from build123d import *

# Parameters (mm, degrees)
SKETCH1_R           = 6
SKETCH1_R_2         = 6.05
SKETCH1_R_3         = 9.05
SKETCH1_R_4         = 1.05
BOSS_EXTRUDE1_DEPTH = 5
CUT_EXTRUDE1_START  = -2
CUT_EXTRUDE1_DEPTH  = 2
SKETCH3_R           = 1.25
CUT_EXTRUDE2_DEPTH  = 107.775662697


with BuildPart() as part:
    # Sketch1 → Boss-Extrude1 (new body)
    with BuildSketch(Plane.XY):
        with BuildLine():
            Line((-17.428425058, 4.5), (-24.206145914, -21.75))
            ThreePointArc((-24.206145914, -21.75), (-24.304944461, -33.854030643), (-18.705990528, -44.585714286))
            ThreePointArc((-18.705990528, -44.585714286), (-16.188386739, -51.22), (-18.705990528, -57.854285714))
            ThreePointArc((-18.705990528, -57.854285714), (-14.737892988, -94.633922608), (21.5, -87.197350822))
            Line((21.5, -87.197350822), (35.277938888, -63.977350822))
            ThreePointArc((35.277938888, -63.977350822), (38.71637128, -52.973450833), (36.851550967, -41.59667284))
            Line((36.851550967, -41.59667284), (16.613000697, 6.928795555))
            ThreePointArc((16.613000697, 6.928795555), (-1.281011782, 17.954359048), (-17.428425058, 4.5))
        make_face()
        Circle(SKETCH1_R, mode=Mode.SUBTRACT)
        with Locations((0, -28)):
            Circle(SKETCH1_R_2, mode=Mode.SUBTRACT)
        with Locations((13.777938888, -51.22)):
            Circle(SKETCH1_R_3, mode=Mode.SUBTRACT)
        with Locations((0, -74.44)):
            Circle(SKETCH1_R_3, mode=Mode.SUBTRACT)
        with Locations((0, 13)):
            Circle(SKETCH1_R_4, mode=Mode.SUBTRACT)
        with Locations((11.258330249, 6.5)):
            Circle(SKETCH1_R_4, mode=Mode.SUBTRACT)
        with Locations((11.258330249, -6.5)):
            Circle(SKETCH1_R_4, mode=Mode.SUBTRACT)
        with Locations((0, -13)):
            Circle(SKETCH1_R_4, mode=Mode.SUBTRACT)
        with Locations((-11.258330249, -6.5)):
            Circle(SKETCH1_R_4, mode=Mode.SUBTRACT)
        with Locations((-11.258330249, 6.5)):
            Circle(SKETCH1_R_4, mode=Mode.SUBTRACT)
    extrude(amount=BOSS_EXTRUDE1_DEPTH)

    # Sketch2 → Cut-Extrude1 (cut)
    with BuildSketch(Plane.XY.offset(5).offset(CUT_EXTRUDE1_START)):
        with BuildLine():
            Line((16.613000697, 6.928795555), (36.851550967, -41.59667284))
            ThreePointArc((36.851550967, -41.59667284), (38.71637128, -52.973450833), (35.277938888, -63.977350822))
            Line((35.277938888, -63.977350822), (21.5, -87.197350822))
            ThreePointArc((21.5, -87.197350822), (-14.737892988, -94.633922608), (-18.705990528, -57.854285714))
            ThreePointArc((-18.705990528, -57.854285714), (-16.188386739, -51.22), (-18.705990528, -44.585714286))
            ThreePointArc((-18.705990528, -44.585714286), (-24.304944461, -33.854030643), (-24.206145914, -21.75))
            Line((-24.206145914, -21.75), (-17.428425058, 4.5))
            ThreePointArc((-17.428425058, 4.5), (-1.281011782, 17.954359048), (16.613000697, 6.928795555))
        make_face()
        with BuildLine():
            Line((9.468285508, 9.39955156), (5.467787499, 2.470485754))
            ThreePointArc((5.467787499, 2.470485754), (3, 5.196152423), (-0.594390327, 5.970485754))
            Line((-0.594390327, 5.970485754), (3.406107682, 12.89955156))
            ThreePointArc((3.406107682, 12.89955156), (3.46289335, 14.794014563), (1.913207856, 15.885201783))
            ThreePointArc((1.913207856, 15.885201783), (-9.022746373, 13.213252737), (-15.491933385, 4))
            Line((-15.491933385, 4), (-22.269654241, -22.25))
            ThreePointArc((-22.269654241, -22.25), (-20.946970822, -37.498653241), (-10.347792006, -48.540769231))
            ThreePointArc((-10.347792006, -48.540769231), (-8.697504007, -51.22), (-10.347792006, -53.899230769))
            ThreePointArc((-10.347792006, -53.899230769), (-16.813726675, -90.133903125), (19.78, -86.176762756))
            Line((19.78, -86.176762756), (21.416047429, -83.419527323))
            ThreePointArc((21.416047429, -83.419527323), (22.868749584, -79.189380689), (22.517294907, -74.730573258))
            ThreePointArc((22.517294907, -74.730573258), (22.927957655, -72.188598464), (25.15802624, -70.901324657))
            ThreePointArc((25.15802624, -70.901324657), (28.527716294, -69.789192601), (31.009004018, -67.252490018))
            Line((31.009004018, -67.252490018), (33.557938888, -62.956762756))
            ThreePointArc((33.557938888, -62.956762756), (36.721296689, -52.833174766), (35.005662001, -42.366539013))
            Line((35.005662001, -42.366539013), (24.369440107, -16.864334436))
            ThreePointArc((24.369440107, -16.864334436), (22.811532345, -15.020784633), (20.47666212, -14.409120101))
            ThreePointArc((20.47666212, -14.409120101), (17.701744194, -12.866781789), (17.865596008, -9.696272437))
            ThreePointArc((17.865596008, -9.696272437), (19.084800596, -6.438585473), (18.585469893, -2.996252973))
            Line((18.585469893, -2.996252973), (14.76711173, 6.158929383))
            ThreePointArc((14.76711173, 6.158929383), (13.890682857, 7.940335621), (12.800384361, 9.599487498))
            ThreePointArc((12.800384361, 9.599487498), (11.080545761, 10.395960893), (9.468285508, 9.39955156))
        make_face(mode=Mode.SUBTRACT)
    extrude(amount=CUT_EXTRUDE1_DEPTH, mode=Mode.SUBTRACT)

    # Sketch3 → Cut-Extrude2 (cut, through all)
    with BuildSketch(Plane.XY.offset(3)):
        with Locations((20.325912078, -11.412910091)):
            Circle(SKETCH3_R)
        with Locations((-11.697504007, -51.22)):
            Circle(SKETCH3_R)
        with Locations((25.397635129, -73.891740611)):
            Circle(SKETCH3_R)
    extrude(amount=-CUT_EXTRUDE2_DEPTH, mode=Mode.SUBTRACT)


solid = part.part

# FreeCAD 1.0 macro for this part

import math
import FreeCAD as App
import Part
import Sketcher
Q = App.Units.Quantity

doc = App.newDocument("Part")
body = doc.addObject("PartDesign::Body", "Body")

sketch1 = body.newObject("Sketcher::SketchObject", "Sketch")
sketch1.AttachmentSupport = (doc.getObject("XY_Plane"), [""])
sketch1.MapMode = "FlatFace"
sketch1.addGeometry([
    Part.LineSegment(App.Vector(-17.428425, 4.5, 0), App.Vector(-24.206146, -21.75, 0)),
    Part.ArcOfCircle(Part.Circle(App.Vector(0, -28, 0), App.Vector(0, 0, 1), 25), math.radians(165.522488), math.radians(221.561882)),
    Part.ArcOfCircle(Part.Circle(App.Vector(-26.188387, -51.22, 0), App.Vector(0, 0, 1), 10), math.radians(-41.561882), math.radians(41.561882)),
    Part.ArcOfCircle(Part.Circle(App.Vector(0, -74.44, 0), App.Vector(0, 0, 1), 25), math.radians(138.438118), math.radians(329.316583)),
    Part.LineSegment(App.Vector(21.5, -87.197351, 0), App.Vector(35.277939, -63.977351, 0)),
    Part.ArcOfCircle(Part.Circle(App.Vector(13.777939, -51.22, 0), App.Vector(0, 0, 1), 25), math.radians(-30.683417), math.radians(22.639586)),
    Part.LineSegment(App.Vector(36.851551, -41.596673, 0), App.Vector(16.613001, 6.928796, 0)),
    Part.ArcOfCircle(Part.Circle(App.Vector(0, 0, 0), App.Vector(0, 0, 1), 18), math.radians(22.639586), math.radians(165.522488)),
    Part.Circle(App.Vector(0, -74.44, 0), App.Vector(0, 0, 1), 9.05),
    Part.Circle(App.Vector(13.777939, -51.22, 0), App.Vector(0, 0, 1), 9.05),
    Part.Circle(App.Vector(0, -28, 0), App.Vector(0, 0, 1), 6.05),
    Part.Circle(App.Vector(0, -13, 0), App.Vector(0, 0, 1), 1.05),
    Part.Circle(App.Vector(-11.25833, -6.5, 0), App.Vector(0, 0, 1), 1.05),
    Part.Circle(App.Vector(-11.25833, 6.5, 0), App.Vector(0, 0, 1), 1.05),
    Part.Circle(App.Vector(0, 0, 0), App.Vector(0, 0, 1), 6),
    Part.Circle(App.Vector(0, 13, 0), App.Vector(0, 0, 1), 1.05),
    Part.Circle(App.Vector(11.25833, -6.5, 0), App.Vector(0, 0, 1), 1.05),
    Part.Circle(App.Vector(11.25833, 6.5, 0), App.Vector(0, 0, 1), 1.05),
], False)
sketch1.addConstraint([
    Sketcher.Constraint("Tangent", 0, 2, 1, 1),
    Sketcher.Constraint("Tangent", 1, 2, 2, 2),
    Sketcher.Constraint("Tangent", 2, 1, 3, 1),
    Sketcher.Constraint("Tangent", 3, 2, 4, 1),
    Sketcher.Constraint("Tangent", 4, 2, 5, 1),
    Sketcher.Constraint("Tangent", 5, 2, 6, 1),
    Sketcher.Constraint("Tangent", 6, 2, 7, 1),
    Sketcher.Constraint("Tangent", 7, 2, 0, 1),
    Sketcher.Constraint("Coincident", 7, 3, -1, 1),
    Sketcher.Constraint("Coincident", 14, 3, -1, 1),
    Sketcher.Constraint("Coincident", 8, 3, 3, 3),
    Sketcher.Constraint("Coincident", 9, 3, 5, 3),
    Sketcher.Constraint("Coincident", 10, 3, 1, 3),
    Sketcher.Constraint("Equal", 1, 3),
    Sketcher.Constraint("Equal", 3, 5),
    Sketcher.Constraint("Equal", 8, 9),
    Sketcher.Constraint("Equal", 11, 12),
    Sketcher.Constraint("Equal", 12, 13),
    Sketcher.Constraint("Equal", 13, 15),
    Sketcher.Constraint("Equal", 15, 16),
    Sketcher.Constraint("Equal", 16, 17),
    Sketcher.Constraint("Symmetric", 11, 3, 15, 3, -1, 1),
    Sketcher.Constraint("Symmetric", 13, 3, 16, 3, -1, 1),
    Sketcher.Constraint("Symmetric", 12, 3, 17, 3, -1, 1),
    Sketcher.Constraint("Symmetric", 12, 3, 16, 3, -2),
    Sketcher.Constraint("PointOnObject", 1, 3, -2),
    Sketcher.Constraint("PointOnObject", 3, 3, -2),
    Sketcher.Constraint("PointOnObject", 11, 3, -2),
    Sketcher.Constraint("Horizontal", 2, 3, 5, 3),
    Sketcher.Constraint("Diameter", 14, Q("12 mm")),
    Sketcher.Constraint("Radius", 1, Q("25 mm")),
    Sketcher.Constraint("Radius", 2, Q("10 mm")),
    Sketcher.Constraint("Radius", 7, Q("18 mm")),
    Sketcher.Constraint("Diameter", 8, Q("18.1 mm")),
    Sketcher.Constraint("Diameter", 10, Q("12.1 mm")),
    Sketcher.Constraint("Diameter", 11, Q("2.1 mm")),
    Sketcher.Constraint("Distance", 4, Q("27 mm")),
    Sketcher.Constraint("DistanceY", 1, 3, -1, 1, Q("28 mm")),
    Sketcher.Constraint("DistanceY", 11, 3, -1, 1, Q("13 mm")),
    Sketcher.Constraint("DistanceY", 12, 3, 13, 3, Q("13 mm")),
    Sketcher.Constraint("DistanceX", -1, 1, 3, 2, Q("21.5 mm")),
    Sketcher.Constraint("DistanceX", 12, 3, -1, 1, Q("11.25833 mm")),
])
pad1 = body.newObject("PartDesign::Pad", "Pad")
pad1.Profile = sketch1
pad1.Length = 5

sketch2 = body.newObject("Sketcher::SketchObject", "Sketch001")
sketch2.AttachmentSupport = (doc.getObject("XY_Plane"), [""])
sketch2.MapMode = "FlatFace"
sketch2.AttachmentOffset = App.Placement(App.Vector(0, 0, 3), App.Rotation())
sketch2.addGeometry([
    Part.LineSegment(App.Vector(36.851551, -41.596673, 0), App.Vector(16.613001, 6.928796, 0)),
    Part.ArcOfCircle(Part.Circle(App.Vector(0, 0, 0), App.Vector(0, 0, 1), 18), math.radians(22.639586), math.radians(165.522488)),
    Part.LineSegment(App.Vector(-17.428425, 4.5, 0), App.Vector(-24.206146, -21.75, 0)),
    Part.ArcOfCircle(Part.Circle(App.Vector(0, -28, 0), App.Vector(0, 0, 1), 25), math.radians(165.522488), math.radians(221.561882)),
    Part.ArcOfCircle(Part.Circle(App.Vector(-26.188387, -51.22, 0), App.Vector(0, 0, 1), 10), math.radians(-41.561882), math.radians(41.561882)),
    Part.ArcOfCircle(Part.Circle(App.Vector(0, -74.44, 0), App.Vector(0, 0, 1), 25), math.radians(138.438118), math.radians(329.316583)),
    Part.LineSegment(App.Vector(21.5, -87.197351, 0), App.Vector(35.277939, -63.977351, 0)),
    Part.ArcOfCircle(Part.Circle(App.Vector(13.777939, -51.22, 0), App.Vector(0, 0, 1), 25), math.radians(-30.683417), math.radians(22.639586)),
    Part.ArcOfCircle(Part.Circle(App.Vector(11.200336, 8.399552, 0), App.Vector(0, 0, 1), 2), math.radians(36.867604), math.radians(150)),
    Part.ArcOfCircle(Part.Circle(App.Vector(0, 0, 0), App.Vector(0, 0, 1), 16), math.radians(22.639586), math.radians(36.867604)),
    Part.LineSegment(App.Vector(14.767112, 6.158929, 0), App.Vector(18.58547, -2.996253, 0)),
    Part.ArcOfCircle(Part.Circle(App.Vector(12.124859, -5.690785, 0), App.Vector(0, 0, 1), 7), math.radians(-34.904658), math.radians(22.639586)),
    Part.ArcOfCircle(Part.Circle(App.Vector(20.325912, -11.41291, 0), App.Vector(0, 0, 1), 3), math.radians(145.095342), math.radians(272.880327)),
    Part.ArcOfCircle(Part.Circle(App.Vector(20.677662, -18.404067, 0), App.Vector(0, 0, 1), 4), math.radians(22.639586), math.radians(92.880327)),
    Part.LineSegment(App.Vector(24.36944, -16.864334, 0), App.Vector(35.005662, -42.366539, 0)),
    Part.ArcOfCircle(Part.Circle(App.Vector(13.777939, -51.22, 0), App.Vector(0, 0, 1), 23), math.radians(-30.683417), math.radians(22.639586)),
    Part.LineSegment(App.Vector(33.557939, -62.956763, 0), App.Vector(31.009004, -67.25249, 0)),
    Part.ArcOfCircle(Part.Circle(App.Vector(24.559004, -63.425285, 0), App.Vector(0, 0, 1), 7.5), math.radians(-85.418928), math.radians(-30.683417)),
    Part.ArcOfCircle(Part.Circle(App.Vector(25.397635, -73.891741, 0), App.Vector(0, 0, 1), 3), math.radians(94.581072), math.radians(196.236982)),
    Part.ArcOfCircle(Part.Circle(App.Vector(11.956047, -77.806293, 0), App.Vector(0, 0, 1), 11), math.radians(-30.683417), math.radians(16.236982)),
    Part.LineSegment(App.Vector(21.416047, -83.419527, 0), App.Vector(19.78, -86.176763, 0)),
    Part.ArcOfCircle(Part.Circle(App.Vector(0, -74.44, 0), App.Vector(0, 0, 1), 23), math.radians(116.737525), math.radians(329.316583)),
    Part.ArcOfCircle(Part.Circle(App.Vector(-11.697504, -51.22, 0), App.Vector(0, 0, 1), 3), math.radians(-63.262475), math.radians(63.262475)),
    Part.ArcOfCircle(Part.Circle(App.Vector(0, -28, 0), App.Vector(0, 0, 1), 23), math.radians(165.522488), math.radians(243.262475)),
    Part.LineSegment(App.Vector(-22.269654, -22.25, 0), App.Vector(-15.491933, 4, 0)),
    Part.ArcOfCircle(Part.Circle(App.Vector(0, 0, 0), App.Vector(0, 0, 1), 16), math.radians(83.132396), math.radians(165.522488)),
    Part.ArcOfCircle(Part.Circle(App.Vector(1.674057, 13.899552, 0), App.Vector(0, 0, 1), 2), math.radians(-30), math.radians(83.132396)),
    Part.LineSegment(App.Vector(3.406108, 12.899552, 0), App.Vector(-0.59439, 5.970486, 0)),
    Part.ArcOfCircle(Part.Circle(App.Vector(0, 0, 0), App.Vector(0, 0, 1), 6), math.radians(24.314665), math.radians(95.685335)),
    Part.LineSegment(App.Vector(5.467787, 2.470486, 0), App.Vector(9.468286, 9.399552, 0)),
], False)
sketch2.addConstraint([
    Sketcher.Constraint("Tangent", 0, 2, 1, 1),
    Sketcher.Constraint("Tangent", 1, 2, 2, 1),
    Sketcher.Constraint("Tangent", 2, 2, 3, 1),
    Sketcher.Constraint("Tangent", 3, 2, 4, 2),
    Sketcher.Constraint("Tangent", 4, 1, 5, 1),
    Sketcher.Constraint("Tangent", 5, 2, 6, 1),
    Sketcher.Constraint("Tangent", 6, 2, 7, 1),
    Sketcher.Constraint("Tangent", 7, 2, 0, 1),
    Sketcher.Constraint("Tangent", 8, 1, 9, 2),
    Sketcher.Constraint("Tangent", 9, 1, 10, 1),
    Sketcher.Constraint("Tangent", 10, 2, 11, 2),
    Sketcher.Constraint("Tangent", 11, 1, 12, 1),
    Sketcher.Constraint("Tangent", 12, 2, 13, 2),
    Sketcher.Constraint("Tangent", 13, 1, 14, 1),
    Sketcher.Constraint("Tangent", 14, 2, 15, 2),
    Sketcher.Constraint("Tangent", 15, 1, 16, 1),
    Sketcher.Constraint("Tangent", 16, 2, 17, 2),
    Sketcher.Constraint("Tangent", 17, 1, 18, 1),
    Sketcher.Constraint("Tangent", 18, 2, 19, 2),
    Sketcher.Constraint("Tangent", 19, 1, 20, 1),
    Sketcher.Constraint("Tangent", 20, 2, 21, 2),
    Sketcher.Constraint("Tangent", 21, 1, 22, 1),
    Sketcher.Constraint("Tangent", 22, 2, 23, 2),
    Sketcher.Constraint("Tangent", 23, 1, 24, 1),
    Sketcher.Constraint("Tangent", 24, 2, 25, 2),
    Sketcher.Constraint("Tangent", 25, 1, 26, 2),
    Sketcher.Constraint("Tangent", 26, 1, 27, 1),
    Sketcher.Constraint("Coincident", 27, 2, 28, 2),
    Sketcher.Constraint("Coincident", 28, 1, 29, 1),
    Sketcher.Constraint("Tangent", 29, 2, 8, 2),
    Sketcher.Constraint("Coincident", 1, 3, -1, 1),
    Sketcher.Constraint("Coincident", 9, 3, -1, 1),
    Sketcher.Constraint("Coincident", 25, 3, -1, 1),
    Sketcher.Constraint("Coincident", 28, 3, -1, 1),
    Sketcher.Constraint("Coincident", 15, 3, 7, 3),
    Sketcher.Constraint("Coincident", 21, 3, 5, 3),
    Sketcher.Constraint("Coincident", 23, 3, 3, 3),
    Sketcher.Constraint("Equal", 3, 5),
    Sketcher.Constraint("Equal", 5, 7),
    Sketcher.Constraint("Equal", 12, 18),
    Sketcher.Constraint("Equal", 15, 21),
    Sketcher.Constraint("Equal", 18, 22),
    Sketcher.Constraint("Equal", 21, 23),
    Sketcher.Constraint("Equal", 9, 25),
    Sketcher.Constraint("Equal", 8, 26),
    Sketcher.Constraint("PointOnObject", 3, 3, -2),
    Sketcher.Constraint("PointOnObject", 5, 3, -2),
    Sketcher.Constraint("Parallel", 0, 10),
    Sketcher.Constraint("Parallel", 10, 14),
    Sketcher.Constraint("Parallel", 6, 16),
    Sketcher.Constraint("Parallel", 16, 20),
    Sketcher.Constraint("Parallel", 2, 24),
    Sketcher.Constraint("Parallel", 27, 29),
    Sketcher.Constraint("Horizontal", 4, 3, 7, 3),
    Sketcher.Constraint("Equal", 27, 29),
    Sketcher.Constraint("Radius", 1, Q("18 mm")),
    Sketcher.Constraint("Radius", 3, Q("25 mm")),
    Sketcher.Constraint("Radius", 4, Q("10 mm")),
    Sketcher.Constraint("Radius", 8, Q("2 mm")),
    Sketcher.Constraint("Radius", 9, Q("16 mm")),
    Sketcher.Constraint("Radius", 11, Q("7 mm")),
    Sketcher.Constraint("Radius", 12, Q("3 mm")),
    Sketcher.Constraint("Radius", 13, Q("4 mm")),
    Sketcher.Constraint("Radius", 19, Q("11 mm")),
    Sketcher.Constraint("Radius", 28, Q("6 mm")),
    Sketcher.Constraint("Radius", 17, Q("7.5 mm")),
    Sketcher.Constraint("Angle", 27, Q("-120 deg")),
    Sketcher.Constraint("Distance", 6, Q("27 mm")),
    Sketcher.Constraint("DistanceY", 3, 3, -1, 1, Q("28 mm")),
    Sketcher.Constraint("DistanceX", -1, 1, 5, 2, Q("21.5 mm")),
    Sketcher.Constraint("DistanceY", 8, 3, 26, 3, Q("5.5 mm")),
    Sketcher.Constraint("DistanceX", 12, 2, 13, 3, Q("0.201 mm")),
    Sketcher.Constraint("DistanceX", 26, 3, 11, 3, Q("10.450802 mm")),
    Sketcher.Constraint("Distance", 16, Q("4.995032 mm")),
    Sketcher.Constraint("DistanceY", 18, 3, -1, 1, Q("73.891741 mm")),
])
pocket1 = body.newObject("PartDesign::Pocket", "Pocket")
pocket1.Profile = sketch2
pocket1.Length = 2
pocket1.Reversed = True

sketch3 = body.newObject("Sketcher::SketchObject", "Sketch002")
sketch3.AttachmentSupport = (doc.getObject("XY_Plane"), [""])
sketch3.MapMode = "FlatFace"
sketch3.AttachmentOffset = App.Placement(App.Vector(0, 0, 3), App.Rotation())
sketch3.addGeometry([
    Part.Circle(App.Vector(20.325912, -11.41291, 0), App.Vector(0, 0, 1), 1.25),
    Part.Circle(App.Vector(-11.697504, -51.22, 0), App.Vector(0, 0, 1), 1.25),
    Part.Circle(App.Vector(25.397635, -73.891741, 0), App.Vector(0, 0, 1), 1.25),
], False)
sketch3.addConstraint([
    Sketcher.Constraint("Equal", 0, 1),
    Sketcher.Constraint("Equal", 1, 2),
    Sketcher.Constraint("Diameter", 0, Q("2.5 mm")),
    Sketcher.Constraint("DistanceY", 1, 3, -1, 1, Q("51.22 mm")),
    Sketcher.Constraint("DistanceY", 0, 3, -1, 1, Q("11.41291 mm")),
    Sketcher.Constraint("DistanceY", 2, 3, -1, 1, Q("73.891741 mm")),
    Sketcher.Constraint("DistanceX", 1, 3, 2, 3, Q("37.095139 mm")),
    Sketcher.Constraint("DistanceX", -1, 1, 0, 3, Q("20.325912 mm")),
    Sketcher.Constraint("DistanceX", 1, 3, -1, 1, Q("11.697504 mm")),
])
pocket2 = body.newObject("PartDesign::Pocket", "Pocket001")
pocket2.Profile = sketch3
pocket2.Type = "ThroughAll"

doc.recompute()
